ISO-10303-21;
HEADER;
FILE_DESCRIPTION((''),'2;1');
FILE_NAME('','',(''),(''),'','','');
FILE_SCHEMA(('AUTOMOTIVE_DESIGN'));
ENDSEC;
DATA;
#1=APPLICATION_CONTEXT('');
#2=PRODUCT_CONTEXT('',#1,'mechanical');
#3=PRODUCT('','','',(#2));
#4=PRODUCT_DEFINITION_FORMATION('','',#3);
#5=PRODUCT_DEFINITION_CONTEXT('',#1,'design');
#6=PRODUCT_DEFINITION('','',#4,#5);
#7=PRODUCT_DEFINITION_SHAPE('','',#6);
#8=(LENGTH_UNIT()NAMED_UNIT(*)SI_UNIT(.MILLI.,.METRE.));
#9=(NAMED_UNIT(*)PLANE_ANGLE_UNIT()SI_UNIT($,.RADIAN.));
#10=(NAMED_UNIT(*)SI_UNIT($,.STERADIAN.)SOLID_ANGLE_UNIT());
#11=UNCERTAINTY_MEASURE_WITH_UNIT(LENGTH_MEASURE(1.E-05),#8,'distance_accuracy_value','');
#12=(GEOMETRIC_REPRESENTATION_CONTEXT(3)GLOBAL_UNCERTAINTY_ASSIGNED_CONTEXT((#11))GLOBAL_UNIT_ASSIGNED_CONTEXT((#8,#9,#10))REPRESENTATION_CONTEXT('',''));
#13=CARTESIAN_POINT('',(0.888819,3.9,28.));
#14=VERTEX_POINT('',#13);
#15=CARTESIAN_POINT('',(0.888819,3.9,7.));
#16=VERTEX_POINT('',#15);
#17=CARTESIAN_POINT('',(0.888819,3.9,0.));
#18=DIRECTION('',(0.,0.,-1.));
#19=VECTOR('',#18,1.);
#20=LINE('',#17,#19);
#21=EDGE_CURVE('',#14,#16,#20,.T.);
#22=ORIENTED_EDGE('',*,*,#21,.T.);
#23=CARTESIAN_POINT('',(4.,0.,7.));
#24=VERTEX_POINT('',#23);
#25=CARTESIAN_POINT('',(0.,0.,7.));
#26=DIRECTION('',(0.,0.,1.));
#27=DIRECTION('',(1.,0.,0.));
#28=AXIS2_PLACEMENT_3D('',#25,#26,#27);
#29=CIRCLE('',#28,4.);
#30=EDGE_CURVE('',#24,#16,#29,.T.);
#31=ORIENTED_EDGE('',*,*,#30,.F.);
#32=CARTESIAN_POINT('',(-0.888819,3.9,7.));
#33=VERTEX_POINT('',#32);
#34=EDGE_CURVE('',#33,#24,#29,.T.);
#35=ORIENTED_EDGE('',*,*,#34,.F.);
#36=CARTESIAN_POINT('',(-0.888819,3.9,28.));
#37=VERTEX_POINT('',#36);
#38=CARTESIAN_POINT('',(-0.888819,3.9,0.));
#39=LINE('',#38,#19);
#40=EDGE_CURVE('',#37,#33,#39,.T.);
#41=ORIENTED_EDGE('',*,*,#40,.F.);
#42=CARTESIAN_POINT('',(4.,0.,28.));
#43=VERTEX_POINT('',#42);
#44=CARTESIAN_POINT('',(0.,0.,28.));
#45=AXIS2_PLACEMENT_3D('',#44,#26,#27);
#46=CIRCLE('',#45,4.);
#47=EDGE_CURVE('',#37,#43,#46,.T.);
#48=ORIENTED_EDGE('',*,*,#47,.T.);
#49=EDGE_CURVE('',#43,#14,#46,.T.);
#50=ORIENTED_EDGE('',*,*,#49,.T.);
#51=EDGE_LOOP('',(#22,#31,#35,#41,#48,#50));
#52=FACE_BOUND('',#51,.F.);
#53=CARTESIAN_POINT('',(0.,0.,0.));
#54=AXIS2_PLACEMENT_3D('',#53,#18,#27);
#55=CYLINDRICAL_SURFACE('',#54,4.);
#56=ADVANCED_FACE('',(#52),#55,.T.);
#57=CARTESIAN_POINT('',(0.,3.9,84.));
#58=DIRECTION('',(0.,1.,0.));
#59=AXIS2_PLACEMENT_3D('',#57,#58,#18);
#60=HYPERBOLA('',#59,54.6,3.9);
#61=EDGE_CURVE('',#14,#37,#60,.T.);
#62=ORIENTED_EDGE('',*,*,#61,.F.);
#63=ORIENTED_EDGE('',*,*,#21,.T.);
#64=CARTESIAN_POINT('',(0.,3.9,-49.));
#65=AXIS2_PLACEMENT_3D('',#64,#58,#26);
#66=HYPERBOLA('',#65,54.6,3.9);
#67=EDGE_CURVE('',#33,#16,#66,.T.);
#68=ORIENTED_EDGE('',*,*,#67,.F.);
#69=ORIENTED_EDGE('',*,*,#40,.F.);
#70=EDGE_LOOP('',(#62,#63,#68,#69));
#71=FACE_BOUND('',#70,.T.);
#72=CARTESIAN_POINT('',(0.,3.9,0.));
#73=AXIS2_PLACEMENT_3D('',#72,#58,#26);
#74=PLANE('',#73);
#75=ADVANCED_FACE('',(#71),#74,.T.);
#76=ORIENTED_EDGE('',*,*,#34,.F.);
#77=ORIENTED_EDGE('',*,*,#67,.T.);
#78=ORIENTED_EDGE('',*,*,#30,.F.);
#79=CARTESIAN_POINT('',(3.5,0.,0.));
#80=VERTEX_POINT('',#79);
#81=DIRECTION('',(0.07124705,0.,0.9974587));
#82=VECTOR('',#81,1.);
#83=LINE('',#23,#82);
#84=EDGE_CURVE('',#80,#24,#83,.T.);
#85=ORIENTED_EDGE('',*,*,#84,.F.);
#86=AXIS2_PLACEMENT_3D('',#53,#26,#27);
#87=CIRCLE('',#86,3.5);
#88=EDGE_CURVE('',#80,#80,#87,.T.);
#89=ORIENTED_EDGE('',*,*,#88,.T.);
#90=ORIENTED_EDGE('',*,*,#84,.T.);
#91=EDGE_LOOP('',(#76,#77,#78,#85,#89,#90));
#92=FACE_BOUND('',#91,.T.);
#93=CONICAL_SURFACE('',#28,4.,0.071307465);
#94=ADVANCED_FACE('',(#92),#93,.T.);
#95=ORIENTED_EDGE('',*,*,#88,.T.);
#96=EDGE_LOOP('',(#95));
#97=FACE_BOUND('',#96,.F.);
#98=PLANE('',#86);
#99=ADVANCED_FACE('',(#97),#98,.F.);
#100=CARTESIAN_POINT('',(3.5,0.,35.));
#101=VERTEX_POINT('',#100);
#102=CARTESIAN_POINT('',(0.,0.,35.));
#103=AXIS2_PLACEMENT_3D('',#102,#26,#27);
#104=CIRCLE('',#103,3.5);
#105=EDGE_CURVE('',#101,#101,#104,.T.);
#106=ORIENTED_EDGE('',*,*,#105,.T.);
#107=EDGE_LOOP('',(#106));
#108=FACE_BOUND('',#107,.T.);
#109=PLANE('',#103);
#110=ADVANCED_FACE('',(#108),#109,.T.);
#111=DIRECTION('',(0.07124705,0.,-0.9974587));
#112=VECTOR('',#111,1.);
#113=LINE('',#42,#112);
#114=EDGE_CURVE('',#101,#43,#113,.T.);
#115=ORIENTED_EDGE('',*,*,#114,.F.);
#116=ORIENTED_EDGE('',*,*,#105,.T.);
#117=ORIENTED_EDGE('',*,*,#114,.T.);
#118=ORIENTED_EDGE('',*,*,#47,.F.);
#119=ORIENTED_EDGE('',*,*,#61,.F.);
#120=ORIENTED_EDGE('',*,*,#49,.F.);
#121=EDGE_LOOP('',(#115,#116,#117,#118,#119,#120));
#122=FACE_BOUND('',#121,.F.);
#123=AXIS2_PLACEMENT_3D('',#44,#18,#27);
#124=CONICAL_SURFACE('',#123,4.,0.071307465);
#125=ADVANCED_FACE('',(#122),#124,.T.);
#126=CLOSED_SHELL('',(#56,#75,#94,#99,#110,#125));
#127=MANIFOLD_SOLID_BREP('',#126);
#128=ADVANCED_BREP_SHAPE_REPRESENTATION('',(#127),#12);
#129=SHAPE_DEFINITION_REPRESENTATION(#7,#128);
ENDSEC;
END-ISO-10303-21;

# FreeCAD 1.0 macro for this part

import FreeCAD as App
import Part
import Sketcher


def edges_at(feature, points):
    """Names of the edges that pass closest to the given points."""
    edges = feature.Shape.Edges
    near = lambda p: min(range(len(edges)), key=lambda i: edges[i].distToShape(Part.Vertex(*p))[0])
    return sorted({f"Edge{near(p) + 1}" for p in points})


def add_polygon(sketch, points):
    """Adds a closed chain of lines whose ends are joined by coincident constraints."""
    first, n = sketch.GeometryCount, len(points)
    for a, b in zip(points, points[1:] + points[:1]):
        sketch.addGeometry(Part.LineSegment(App.Vector(*a, 0), App.Vector(*b, 0)), False)
    for i in range(n):
        sketch.addConstraint(Sketcher.Constraint("Coincident", first + i, 2, first + (i + 1) % n, 1))

doc = App.newDocument("Part")
body = doc.addObject("PartDesign::Body", "Body")

# Sketch on XY plane
sketch1 = body.newObject("Sketcher::SketchObject", "Sketch")
sketch1.AttachmentSupport = (doc.getObject("XY_Plane"), [""])
sketch1.MapMode = "FlatFace"
sketch1.addGeometry(Part.Circle(App.Vector(0, 0, 0), App.Vector(0, 0, 1), 4), False)
sketch1.addConstraint([
    Sketcher.Constraint("Coincident", 0, 3, -1, 1),
    Sketcher.Constraint("Diameter", 0, 8.0),
])
pad1 = body.newObject("PartDesign::Pad", "Pad")
pad1.Profile = sketch1
pad1.Length = 35
doc.recompute()

chamfer = body.newObject("PartDesign::Chamfer", "Chamfer")
chamfer.Base = (pad1, edges_at(pad1, [(-4, 0, 35)]))
chamfer.ChamferType = "Two distances"
chamfer.Size = 0.5
chamfer.Size2 = 7
chamfer.FlipDirection = True
doc.recompute()

chamfer2 = body.newObject("PartDesign::Chamfer", "Chamfer001")
chamfer2.Base = (chamfer, edges_at(chamfer, [(-4, 0, 0)]))
chamfer2.ChamferType = "Two distances"
chamfer2.Size = 0.5
chamfer2.Size2 = 7
chamfer2.FlipDirection = True

# Sketch on YZ plane
sketch2 = body.newObject("Sketcher::SketchObject", "Sketch001")
sketch2.AttachmentSupport = (doc.getObject("YZ_Plane"), [""])
sketch2.MapMode = "FlatFace"
add_polygon(sketch2, [(4, 35), (4, 0), (14, 0), (14, 35)])  # lines 0-3
sketch2.addConstraint([
    Sketcher.Constraint("Vertical", 0),
    Sketcher.Constraint("Horizontal", 1),
    Sketcher.Constraint("Vertical", 2),
    Sketcher.Constraint("Horizontal", 3),
    Sketcher.Constraint("PointOnObject", 0, 2, -1),
    Sketcher.Constraint("DistanceX", 1, 1, 1, 2, 10.0),
    Sketcher.Constraint("DistanceY", 0, 2, 0, 1, 35.0),
    Sketcher.Constraint("DistanceX", -1, 1, 0, 2, 3.9),
])
pocket1 = body.newObject("PartDesign::Pocket", "Pocket")
pocket1.Profile = sketch2
pocket1.Length = 25
pocket1.Midplane = True

doc.recompute()
